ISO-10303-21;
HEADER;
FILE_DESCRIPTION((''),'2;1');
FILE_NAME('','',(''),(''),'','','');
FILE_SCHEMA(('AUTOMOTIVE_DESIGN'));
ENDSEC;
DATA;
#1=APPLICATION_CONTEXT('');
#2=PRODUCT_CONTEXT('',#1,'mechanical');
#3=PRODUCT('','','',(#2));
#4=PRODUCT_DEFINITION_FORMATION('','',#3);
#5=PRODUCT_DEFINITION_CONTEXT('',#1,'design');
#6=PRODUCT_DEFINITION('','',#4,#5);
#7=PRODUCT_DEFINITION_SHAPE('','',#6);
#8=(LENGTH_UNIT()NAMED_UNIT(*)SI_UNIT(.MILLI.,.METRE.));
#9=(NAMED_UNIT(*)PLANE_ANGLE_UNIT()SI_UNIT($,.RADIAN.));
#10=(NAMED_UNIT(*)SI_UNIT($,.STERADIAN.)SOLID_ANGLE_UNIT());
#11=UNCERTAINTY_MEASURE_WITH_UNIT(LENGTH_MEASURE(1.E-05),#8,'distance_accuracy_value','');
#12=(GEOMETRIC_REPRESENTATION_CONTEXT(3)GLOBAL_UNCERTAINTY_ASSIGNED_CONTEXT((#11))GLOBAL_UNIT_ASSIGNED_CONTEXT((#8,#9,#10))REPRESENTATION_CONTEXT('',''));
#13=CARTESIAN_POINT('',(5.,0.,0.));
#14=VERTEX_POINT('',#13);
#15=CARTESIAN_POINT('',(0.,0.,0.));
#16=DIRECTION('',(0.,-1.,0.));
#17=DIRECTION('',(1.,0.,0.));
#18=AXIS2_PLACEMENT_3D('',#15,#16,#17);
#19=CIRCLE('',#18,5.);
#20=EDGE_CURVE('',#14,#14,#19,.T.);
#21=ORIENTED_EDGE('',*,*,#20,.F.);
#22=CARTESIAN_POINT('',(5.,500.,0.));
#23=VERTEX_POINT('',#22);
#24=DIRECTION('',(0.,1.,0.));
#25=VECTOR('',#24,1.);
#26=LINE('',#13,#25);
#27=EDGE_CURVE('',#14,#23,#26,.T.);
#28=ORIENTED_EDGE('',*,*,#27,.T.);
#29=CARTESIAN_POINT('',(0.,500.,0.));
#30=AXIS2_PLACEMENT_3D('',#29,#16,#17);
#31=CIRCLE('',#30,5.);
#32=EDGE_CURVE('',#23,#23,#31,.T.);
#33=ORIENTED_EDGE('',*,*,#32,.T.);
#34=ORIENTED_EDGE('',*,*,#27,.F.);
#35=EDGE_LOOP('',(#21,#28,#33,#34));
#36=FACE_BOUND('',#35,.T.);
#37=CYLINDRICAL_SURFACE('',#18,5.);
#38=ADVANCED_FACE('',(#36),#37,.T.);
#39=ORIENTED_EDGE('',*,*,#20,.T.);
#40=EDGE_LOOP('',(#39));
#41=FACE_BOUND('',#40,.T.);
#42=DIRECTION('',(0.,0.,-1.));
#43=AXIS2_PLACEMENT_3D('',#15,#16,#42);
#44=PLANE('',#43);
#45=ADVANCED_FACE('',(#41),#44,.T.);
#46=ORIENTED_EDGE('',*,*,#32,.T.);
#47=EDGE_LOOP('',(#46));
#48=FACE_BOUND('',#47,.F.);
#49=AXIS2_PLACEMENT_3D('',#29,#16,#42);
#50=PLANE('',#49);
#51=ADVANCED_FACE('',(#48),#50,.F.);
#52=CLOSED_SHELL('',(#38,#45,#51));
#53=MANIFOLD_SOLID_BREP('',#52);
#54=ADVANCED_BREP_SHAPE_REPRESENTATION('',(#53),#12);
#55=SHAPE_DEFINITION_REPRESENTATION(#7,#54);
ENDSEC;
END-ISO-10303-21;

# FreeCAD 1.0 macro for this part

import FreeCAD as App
import Part
import Sketcher
Q = App.Units.Quantity

doc = App.newDocument("Part")
body = doc.addObject("PartDesign::Body", "Body")

sketch1 = body.newObject("Sketcher::SketchObject", "Sketch")
sketch1.AttachmentSupport = (doc.getObject("XZ_Plane"), [""])
sketch1.MapMode = "FlatFace"
sketch1.addGeometry(Part.Circle(App.Vector(0, 0, 0), App.Vector(0, 0, 1), 5), False)
sketch1.addConstraint(Sketcher.Constraint("Coincident", 0, 3, -1, 1))
sketch1.addConstraint(Sketcher.Constraint("Diameter", 0, Q("10 mm")))
pad1 = body.newObject("PartDesign::Pad", "Pad")
pad1.Profile = sketch1
pad1.Length = 500
pad1.Reversed = True

doc.recompute()
